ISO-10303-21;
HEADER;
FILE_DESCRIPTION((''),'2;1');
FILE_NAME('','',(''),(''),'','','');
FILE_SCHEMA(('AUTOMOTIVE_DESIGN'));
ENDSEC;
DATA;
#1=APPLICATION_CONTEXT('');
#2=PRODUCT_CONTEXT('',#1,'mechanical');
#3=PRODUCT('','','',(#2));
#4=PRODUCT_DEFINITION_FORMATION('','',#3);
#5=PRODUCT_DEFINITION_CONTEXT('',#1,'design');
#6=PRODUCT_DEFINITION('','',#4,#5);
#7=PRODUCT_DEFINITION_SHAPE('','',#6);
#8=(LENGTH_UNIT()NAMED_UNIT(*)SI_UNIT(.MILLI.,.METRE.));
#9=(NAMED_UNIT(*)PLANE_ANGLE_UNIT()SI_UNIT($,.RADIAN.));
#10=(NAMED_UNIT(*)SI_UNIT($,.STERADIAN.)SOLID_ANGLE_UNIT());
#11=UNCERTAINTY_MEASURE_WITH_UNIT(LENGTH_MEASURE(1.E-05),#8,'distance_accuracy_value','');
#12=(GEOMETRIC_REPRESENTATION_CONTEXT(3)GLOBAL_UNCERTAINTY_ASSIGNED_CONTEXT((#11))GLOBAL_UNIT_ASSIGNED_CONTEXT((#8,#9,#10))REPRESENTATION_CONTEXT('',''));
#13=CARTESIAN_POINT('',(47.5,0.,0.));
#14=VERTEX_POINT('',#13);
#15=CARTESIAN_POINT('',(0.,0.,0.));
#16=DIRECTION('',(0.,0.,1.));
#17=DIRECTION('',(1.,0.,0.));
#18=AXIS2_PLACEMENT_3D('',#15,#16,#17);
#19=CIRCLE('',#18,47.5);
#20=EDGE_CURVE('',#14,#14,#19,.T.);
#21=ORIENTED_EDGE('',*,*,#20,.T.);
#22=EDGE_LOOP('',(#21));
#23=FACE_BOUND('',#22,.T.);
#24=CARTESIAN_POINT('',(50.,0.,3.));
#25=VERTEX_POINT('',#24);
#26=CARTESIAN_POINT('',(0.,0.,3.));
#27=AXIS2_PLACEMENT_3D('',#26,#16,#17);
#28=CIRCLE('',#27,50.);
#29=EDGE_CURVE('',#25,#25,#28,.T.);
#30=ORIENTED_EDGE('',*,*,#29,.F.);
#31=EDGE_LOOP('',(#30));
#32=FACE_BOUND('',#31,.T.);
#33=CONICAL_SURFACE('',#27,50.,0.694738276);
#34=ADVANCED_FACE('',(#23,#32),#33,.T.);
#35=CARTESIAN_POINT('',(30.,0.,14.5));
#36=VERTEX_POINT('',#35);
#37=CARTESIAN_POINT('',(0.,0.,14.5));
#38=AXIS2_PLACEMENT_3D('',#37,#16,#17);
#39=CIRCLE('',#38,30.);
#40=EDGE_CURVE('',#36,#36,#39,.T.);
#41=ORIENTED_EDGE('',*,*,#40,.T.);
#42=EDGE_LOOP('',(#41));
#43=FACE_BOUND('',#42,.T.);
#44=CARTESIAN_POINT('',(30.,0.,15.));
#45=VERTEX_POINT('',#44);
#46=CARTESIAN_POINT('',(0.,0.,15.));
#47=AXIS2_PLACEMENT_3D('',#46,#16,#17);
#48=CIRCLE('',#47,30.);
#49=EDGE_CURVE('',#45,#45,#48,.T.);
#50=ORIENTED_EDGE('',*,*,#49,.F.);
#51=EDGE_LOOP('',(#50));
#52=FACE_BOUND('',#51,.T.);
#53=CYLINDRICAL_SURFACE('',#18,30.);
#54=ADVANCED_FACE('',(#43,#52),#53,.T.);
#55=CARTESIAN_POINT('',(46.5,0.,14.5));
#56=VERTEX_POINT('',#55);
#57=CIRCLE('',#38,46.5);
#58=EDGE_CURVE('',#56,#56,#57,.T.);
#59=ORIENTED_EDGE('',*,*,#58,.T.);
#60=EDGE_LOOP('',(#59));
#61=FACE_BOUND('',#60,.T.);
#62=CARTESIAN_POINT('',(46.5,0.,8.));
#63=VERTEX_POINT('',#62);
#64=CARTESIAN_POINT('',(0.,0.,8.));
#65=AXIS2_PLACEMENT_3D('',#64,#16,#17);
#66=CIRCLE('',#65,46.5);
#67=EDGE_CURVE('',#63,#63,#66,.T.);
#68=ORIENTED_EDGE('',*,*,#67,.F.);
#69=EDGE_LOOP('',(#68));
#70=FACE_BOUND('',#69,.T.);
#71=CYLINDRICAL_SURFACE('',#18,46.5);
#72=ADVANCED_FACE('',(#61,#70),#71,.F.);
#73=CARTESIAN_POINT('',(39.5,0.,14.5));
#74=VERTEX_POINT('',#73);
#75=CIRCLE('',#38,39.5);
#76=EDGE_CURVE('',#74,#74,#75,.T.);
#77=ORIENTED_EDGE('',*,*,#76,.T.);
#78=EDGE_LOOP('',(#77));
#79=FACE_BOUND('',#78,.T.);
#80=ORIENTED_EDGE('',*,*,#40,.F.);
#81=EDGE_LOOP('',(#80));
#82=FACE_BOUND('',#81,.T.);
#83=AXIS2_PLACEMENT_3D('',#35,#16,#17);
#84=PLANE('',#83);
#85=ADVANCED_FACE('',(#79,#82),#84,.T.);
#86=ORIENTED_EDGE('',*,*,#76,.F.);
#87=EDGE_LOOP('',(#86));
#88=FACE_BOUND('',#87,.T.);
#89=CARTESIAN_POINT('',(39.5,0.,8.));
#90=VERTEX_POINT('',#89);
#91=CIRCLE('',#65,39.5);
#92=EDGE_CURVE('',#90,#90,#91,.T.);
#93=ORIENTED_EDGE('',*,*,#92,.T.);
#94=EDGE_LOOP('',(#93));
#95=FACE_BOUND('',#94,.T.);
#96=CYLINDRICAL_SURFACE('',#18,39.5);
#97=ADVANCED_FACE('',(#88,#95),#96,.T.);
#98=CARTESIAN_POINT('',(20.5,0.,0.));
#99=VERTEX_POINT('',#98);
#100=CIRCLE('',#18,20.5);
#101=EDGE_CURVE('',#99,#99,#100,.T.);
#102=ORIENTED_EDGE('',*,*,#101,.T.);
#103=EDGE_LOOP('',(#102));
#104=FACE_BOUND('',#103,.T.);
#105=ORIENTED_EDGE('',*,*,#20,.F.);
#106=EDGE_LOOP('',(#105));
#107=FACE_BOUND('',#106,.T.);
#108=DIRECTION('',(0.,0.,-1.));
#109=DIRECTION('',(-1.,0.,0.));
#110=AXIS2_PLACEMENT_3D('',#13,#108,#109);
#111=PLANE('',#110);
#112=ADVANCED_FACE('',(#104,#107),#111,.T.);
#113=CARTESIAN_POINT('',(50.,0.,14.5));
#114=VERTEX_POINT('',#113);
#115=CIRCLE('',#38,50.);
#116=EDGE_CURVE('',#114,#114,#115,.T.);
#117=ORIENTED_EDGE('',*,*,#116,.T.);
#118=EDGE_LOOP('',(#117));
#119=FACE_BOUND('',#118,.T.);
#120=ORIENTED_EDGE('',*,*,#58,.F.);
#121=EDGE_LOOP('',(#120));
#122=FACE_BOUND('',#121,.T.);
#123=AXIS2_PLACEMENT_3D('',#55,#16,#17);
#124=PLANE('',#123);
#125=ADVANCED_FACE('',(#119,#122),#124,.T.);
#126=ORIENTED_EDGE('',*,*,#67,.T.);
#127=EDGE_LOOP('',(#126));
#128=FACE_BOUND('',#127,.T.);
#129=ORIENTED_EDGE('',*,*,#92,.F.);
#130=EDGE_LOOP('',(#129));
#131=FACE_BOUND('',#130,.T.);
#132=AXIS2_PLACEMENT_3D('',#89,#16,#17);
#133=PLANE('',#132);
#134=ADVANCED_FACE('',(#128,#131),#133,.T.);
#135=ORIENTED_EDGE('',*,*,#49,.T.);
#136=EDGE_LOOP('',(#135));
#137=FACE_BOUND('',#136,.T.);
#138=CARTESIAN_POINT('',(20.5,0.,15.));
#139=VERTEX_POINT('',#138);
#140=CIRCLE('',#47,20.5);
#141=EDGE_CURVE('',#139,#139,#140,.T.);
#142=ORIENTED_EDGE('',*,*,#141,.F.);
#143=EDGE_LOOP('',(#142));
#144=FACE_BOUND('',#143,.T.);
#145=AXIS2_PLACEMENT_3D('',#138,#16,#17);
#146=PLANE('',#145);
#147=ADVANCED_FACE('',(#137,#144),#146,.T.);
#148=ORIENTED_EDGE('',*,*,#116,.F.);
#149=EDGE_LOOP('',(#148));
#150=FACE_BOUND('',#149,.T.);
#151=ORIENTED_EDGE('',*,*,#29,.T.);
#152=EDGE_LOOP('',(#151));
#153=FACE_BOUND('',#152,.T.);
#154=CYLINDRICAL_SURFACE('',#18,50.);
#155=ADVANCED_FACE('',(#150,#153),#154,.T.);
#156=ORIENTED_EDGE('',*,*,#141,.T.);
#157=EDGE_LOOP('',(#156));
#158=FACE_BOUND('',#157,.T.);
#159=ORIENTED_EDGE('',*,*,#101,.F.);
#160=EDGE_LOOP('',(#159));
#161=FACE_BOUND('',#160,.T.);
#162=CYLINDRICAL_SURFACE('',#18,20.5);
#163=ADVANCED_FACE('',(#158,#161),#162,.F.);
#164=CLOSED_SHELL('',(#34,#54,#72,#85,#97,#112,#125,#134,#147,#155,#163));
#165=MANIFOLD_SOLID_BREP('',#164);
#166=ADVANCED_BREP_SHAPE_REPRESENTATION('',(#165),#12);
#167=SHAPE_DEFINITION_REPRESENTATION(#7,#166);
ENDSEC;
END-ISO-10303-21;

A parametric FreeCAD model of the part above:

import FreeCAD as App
import Part
import Sketcher

V = App.Vector
Q = App.Units.Quantity

doc = App.newDocument("Part")
body = doc.addObject("PartDesign::Body", "Body")

sketch1 = doc.addObject("Sketcher::SketchObject", "Sketch")
body.addObject(sketch1)
sketch1.AttachmentSupport = (doc.XZ_Plane, [""])
sketch1.MapMode = "FlatFace"
sketch1.addGeometry([
    Part.LineSegment(V(39.5, 8, 0), V(46.5, 8, 0)),
    Part.LineSegment(V(46.5, 8, 0), V(46.5, 14.5, 0)),
    Part.LineSegment(V(46.5, 14.5, 0), V(50, 14.5, 0)),
    Part.LineSegment(V(50, 14.5, 0), V(50, 3, 0)),
    Part.LineSegment(V(50, 3, 0), V(47.5, 0, 0)),
    Part.LineSegment(V(47.5, 0, 0), V(20.5, 0, 0)),
    Part.LineSegment(V(20.5, 0, 0), V(20.5, 15, 0)),
    Part.LineSegment(V(20.5, 15, 0), V(30, 15, 0)),
    Part.LineSegment(V(30, 15, 0), V(30, 14.5, 0)),
    Part.LineSegment(V(30, 14.5, 0), V(39.5, 14.5, 0)),
    Part.LineSegment(V(39.5, 14.5, 0), V(39.5, 8, 0)),
], False)
sketch1.addConstraint([
    Sketcher.Constraint("Coincident", 0, 2, 1, 1),
    Sketcher.Constraint("Coincident", 1, 2, 2, 1),
    Sketcher.Constraint("Coincident", 2, 2, 3, 1),
    Sketcher.Constraint("Coincident", 3, 2, 4, 1),
    Sketcher.Constraint("Coincident", 4, 2, 5, 1),
    Sketcher.Constraint("Coincident", 5, 2, 6, 1),
    Sketcher.Constraint("Coincident", 6, 2, 7, 1),
    Sketcher.Constraint("Coincident", 7, 2, 8, 1),
    Sketcher.Constraint("Coincident", 8, 2, 9, 1),
    Sketcher.Constraint("Coincident", 9, 2, 10, 1),
    Sketcher.Constraint("Coincident", 10, 2, 0, 1),
    Sketcher.Constraint("Horizontal", 0),
    Sketcher.Constraint("Vertical", 1),
    Sketcher.Constraint("Horizontal", 2),
    Sketcher.Constraint("Vertical", 3),
    Sketcher.Constraint("Horizontal", 5),
    Sketcher.Constraint("Vertical", 6),
    Sketcher.Constraint("Horizontal", 7),
    Sketcher.Constraint("Vertical", 8),
    Sketcher.Constraint("Horizontal", 9),
    Sketcher.Constraint("Vertical", 10),
    Sketcher.Constraint("PointOnObject", 4, 2, -1),
    Sketcher.Constraint("Horizontal", 2, 2, 8, 2),
    Sketcher.Constraint("Equal", 7, 9),
    Sketcher.Constraint("DistanceX", 0, 1, 0, 2, Q("7 mm")),
    Sketcher.Constraint("DistanceX", 5, 2, 5, 1, Q("27 mm")),
    Sketcher.Constraint("DistanceY", 6, 1, 6, 2, Q("15 mm")),
    Sketcher.Constraint("DistanceX", 2, 1, 2, 2, Q("3.5 mm")),
    Sketcher.Constraint("DistanceX", 7, 1, 7, 2, Q("9.5 mm")),
    Sketcher.Constraint("DistanceY", 1, 1, 1, 2, Q("6.5 mm")),
    Sketcher.Constraint("DistanceY", 3, 2, 3, 1, Q("11.5 mm")),
    Sketcher.Constraint("DistanceY", 8, 2, 8, 1, Q("0.5 mm")),
    Sketcher.Constraint("DistanceX", -1, 1, 2, 2, Q("50 mm")),
])
revolution = doc.addObject("PartDesign::Revolution", "Revolution")
body.addObject(revolution)
revolution.Profile = sketch1
revolution.ReferenceAxis = (sketch1, ["V_Axis"])
revolution.Angle = 360

doc.recompute()
